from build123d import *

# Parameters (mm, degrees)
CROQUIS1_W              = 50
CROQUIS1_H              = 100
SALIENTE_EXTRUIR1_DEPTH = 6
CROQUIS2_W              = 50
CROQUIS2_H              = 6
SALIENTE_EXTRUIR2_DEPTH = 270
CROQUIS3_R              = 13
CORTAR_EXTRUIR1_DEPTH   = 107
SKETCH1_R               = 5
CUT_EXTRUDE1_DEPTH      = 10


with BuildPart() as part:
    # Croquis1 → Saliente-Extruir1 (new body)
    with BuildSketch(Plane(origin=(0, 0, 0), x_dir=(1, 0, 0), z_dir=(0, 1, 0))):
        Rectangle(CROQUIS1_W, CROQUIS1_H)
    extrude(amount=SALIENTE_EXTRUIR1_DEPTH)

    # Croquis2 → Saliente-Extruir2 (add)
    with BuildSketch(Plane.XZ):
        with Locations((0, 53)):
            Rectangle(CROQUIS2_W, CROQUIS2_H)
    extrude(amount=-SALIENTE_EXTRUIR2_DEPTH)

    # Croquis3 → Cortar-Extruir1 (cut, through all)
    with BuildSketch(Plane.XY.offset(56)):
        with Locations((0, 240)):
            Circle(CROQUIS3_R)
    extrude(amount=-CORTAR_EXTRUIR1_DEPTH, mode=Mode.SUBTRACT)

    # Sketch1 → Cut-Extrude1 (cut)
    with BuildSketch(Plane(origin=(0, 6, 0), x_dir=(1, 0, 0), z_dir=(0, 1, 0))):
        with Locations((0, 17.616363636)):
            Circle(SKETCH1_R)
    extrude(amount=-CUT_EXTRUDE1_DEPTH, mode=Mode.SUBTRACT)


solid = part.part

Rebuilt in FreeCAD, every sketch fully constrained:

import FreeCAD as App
import Part
import Sketcher

V = App.Vector


def add_polygon(sketch, points):
    """Adds a closed chain of lines whose ends are joined by coincident constraints."""
    first, n = sketch.GeometryCount, len(points)
    for a, b in zip(points, points[1:] + points[:1]):
        sketch.addGeometry(Part.LineSegment(App.Vector(*a, 0), App.Vector(*b, 0)), False)
    for i in range(n):
        sketch.addConstraint(Sketcher.Constraint("Coincident", first + i, 2, first + (i + 1) % n, 1))

doc = App.newDocument("Part")
body = doc.addObject("PartDesign::Body", "Body")

# Sketch on XZ plane
sketch1 = body.newObject("Sketcher::SketchObject", "Sketch")
sketch1.AttachmentSupport = (doc.getObject("XZ_Plane"), [""])
sketch1.MapMode = "FlatFace"
add_polygon(sketch1, [(-25, -50), (-25, 50), (25, 50), (25, -50)])  # lines 0-3
sketch1.addConstraint(Sketcher.Constraint("Vertical", 0))
sketch1.addConstraint(Sketcher.Constraint("Horizontal", 1))
sketch1.addConstraint(Sketcher.Constraint("Vertical", 2))
sketch1.addConstraint(Sketcher.Constraint("Horizontal", 3))
sketch1.addConstraint(Sketcher.Constraint("Symmetric", 0, 2, 2, 2, -1, 1))
sketch1.addConstraint(Sketcher.Constraint("DistanceX", 1, 1, 1, 2, 50.0))
sketch1.addConstraint(Sketcher.Constraint("DistanceY", 0, 1, 0, 2, 100.0))
pad1 = body.newObject("PartDesign::Pad", "Pad")
pad1.Profile = sketch1
pad1.Length = 6
pad1.Reversed = True

# Sketch on XZ plane
sketch2 = body.newObject("Sketcher::SketchObject", "Sketch001")
sketch2.AttachmentSupport = (doc.getObject("XZ_Plane"), [""])
sketch2.MapMode = "FlatFace"
add_polygon(sketch2, [(-25, 56), (-25, 50), (25, 50), (25, 56)])  # lines 0-3
sketch2.addConstraint(Sketcher.Constraint("Vertical", 0))
sketch2.addConstraint(Sketcher.Constraint("Horizontal", 1))
sketch2.addConstraint(Sketcher.Constraint("Vertical", 2))
sketch2.addConstraint(Sketcher.Constraint("Horizontal", 3))
sketch2.addConstraint(Sketcher.Constraint("DistanceX", 1, 1, 1, 2, 50.0))
sketch2.addConstraint(Sketcher.Constraint("DistanceY", 0, 2, 0, 1, 6.0))
sketch2.addConstraint(Sketcher.Constraint("DistanceX", 0, 2, -1, 1, 25.0))
sketch2.addConstraint(Sketcher.Constraint("DistanceY", -1, 1, 0, 2, 50.0))
pad2 = body.newObject("PartDesign::Pad", "Pad001")
pad2.Profile = sketch2
pad2.Length = 270
pad2.Reversed = True

# Sketch on XY plane
sketch3 = body.newObject("Sketcher::SketchObject", "Sketch002")
sketch3.AttachmentSupport = (doc.getObject("XY_Plane"), [""])
sketch3.MapMode = "FlatFace"
sketch3.AttachmentOffset = App.Placement(V(0, 0, 56), App.Rotation())
sketch3.addGeometry(Part.Circle(V(0, 240, 0), V(0, 0, 1), 13), False)
sketch3.addConstraint(Sketcher.Constraint("PointOnObject", 0, 3, -2))
sketch3.addConstraint(Sketcher.Constraint("Diameter", 0, 26.0))
sketch3.addConstraint(Sketcher.Constraint("DistanceY", -1, 1, 0, 3, 240.0))
pocket1 = body.newObject("PartDesign::Pocket", "Pocket")
pocket1.Profile = sketch3
pocket1.Type = "ThroughAll"

# Sketch on XZ plane
sketch4 = body.newObject("Sketcher::SketchObject", "Sketch003")
sketch4.AttachmentSupport = (doc.getObject("XZ_Plane"), [""])
sketch4.MapMode = "FlatFace"
sketch4.AttachmentOffset = App.Placement(V(0, 0, -6), App.Rotation())
sketch4.addGeometry(Part.Circle(V(0, -18, 0), V(0, 0, 1), 5), False)
sketch4.addConstraint(Sketcher.Constraint("PointOnObject", 0, 3, -2))
sketch4.addConstraint(Sketcher.Constraint("Diameter", 0, 10.0))
sketch4.addConstraint(Sketcher.Constraint("DistanceY", 0, 3, -1, 1, 17.616364))
pocket2 = body.newObject("PartDesign::Pocket", "Pocket001")
pocket2.Profile = sketch4
pocket2.Length = 10
pocket2.Reversed = True

doc.recompute()
